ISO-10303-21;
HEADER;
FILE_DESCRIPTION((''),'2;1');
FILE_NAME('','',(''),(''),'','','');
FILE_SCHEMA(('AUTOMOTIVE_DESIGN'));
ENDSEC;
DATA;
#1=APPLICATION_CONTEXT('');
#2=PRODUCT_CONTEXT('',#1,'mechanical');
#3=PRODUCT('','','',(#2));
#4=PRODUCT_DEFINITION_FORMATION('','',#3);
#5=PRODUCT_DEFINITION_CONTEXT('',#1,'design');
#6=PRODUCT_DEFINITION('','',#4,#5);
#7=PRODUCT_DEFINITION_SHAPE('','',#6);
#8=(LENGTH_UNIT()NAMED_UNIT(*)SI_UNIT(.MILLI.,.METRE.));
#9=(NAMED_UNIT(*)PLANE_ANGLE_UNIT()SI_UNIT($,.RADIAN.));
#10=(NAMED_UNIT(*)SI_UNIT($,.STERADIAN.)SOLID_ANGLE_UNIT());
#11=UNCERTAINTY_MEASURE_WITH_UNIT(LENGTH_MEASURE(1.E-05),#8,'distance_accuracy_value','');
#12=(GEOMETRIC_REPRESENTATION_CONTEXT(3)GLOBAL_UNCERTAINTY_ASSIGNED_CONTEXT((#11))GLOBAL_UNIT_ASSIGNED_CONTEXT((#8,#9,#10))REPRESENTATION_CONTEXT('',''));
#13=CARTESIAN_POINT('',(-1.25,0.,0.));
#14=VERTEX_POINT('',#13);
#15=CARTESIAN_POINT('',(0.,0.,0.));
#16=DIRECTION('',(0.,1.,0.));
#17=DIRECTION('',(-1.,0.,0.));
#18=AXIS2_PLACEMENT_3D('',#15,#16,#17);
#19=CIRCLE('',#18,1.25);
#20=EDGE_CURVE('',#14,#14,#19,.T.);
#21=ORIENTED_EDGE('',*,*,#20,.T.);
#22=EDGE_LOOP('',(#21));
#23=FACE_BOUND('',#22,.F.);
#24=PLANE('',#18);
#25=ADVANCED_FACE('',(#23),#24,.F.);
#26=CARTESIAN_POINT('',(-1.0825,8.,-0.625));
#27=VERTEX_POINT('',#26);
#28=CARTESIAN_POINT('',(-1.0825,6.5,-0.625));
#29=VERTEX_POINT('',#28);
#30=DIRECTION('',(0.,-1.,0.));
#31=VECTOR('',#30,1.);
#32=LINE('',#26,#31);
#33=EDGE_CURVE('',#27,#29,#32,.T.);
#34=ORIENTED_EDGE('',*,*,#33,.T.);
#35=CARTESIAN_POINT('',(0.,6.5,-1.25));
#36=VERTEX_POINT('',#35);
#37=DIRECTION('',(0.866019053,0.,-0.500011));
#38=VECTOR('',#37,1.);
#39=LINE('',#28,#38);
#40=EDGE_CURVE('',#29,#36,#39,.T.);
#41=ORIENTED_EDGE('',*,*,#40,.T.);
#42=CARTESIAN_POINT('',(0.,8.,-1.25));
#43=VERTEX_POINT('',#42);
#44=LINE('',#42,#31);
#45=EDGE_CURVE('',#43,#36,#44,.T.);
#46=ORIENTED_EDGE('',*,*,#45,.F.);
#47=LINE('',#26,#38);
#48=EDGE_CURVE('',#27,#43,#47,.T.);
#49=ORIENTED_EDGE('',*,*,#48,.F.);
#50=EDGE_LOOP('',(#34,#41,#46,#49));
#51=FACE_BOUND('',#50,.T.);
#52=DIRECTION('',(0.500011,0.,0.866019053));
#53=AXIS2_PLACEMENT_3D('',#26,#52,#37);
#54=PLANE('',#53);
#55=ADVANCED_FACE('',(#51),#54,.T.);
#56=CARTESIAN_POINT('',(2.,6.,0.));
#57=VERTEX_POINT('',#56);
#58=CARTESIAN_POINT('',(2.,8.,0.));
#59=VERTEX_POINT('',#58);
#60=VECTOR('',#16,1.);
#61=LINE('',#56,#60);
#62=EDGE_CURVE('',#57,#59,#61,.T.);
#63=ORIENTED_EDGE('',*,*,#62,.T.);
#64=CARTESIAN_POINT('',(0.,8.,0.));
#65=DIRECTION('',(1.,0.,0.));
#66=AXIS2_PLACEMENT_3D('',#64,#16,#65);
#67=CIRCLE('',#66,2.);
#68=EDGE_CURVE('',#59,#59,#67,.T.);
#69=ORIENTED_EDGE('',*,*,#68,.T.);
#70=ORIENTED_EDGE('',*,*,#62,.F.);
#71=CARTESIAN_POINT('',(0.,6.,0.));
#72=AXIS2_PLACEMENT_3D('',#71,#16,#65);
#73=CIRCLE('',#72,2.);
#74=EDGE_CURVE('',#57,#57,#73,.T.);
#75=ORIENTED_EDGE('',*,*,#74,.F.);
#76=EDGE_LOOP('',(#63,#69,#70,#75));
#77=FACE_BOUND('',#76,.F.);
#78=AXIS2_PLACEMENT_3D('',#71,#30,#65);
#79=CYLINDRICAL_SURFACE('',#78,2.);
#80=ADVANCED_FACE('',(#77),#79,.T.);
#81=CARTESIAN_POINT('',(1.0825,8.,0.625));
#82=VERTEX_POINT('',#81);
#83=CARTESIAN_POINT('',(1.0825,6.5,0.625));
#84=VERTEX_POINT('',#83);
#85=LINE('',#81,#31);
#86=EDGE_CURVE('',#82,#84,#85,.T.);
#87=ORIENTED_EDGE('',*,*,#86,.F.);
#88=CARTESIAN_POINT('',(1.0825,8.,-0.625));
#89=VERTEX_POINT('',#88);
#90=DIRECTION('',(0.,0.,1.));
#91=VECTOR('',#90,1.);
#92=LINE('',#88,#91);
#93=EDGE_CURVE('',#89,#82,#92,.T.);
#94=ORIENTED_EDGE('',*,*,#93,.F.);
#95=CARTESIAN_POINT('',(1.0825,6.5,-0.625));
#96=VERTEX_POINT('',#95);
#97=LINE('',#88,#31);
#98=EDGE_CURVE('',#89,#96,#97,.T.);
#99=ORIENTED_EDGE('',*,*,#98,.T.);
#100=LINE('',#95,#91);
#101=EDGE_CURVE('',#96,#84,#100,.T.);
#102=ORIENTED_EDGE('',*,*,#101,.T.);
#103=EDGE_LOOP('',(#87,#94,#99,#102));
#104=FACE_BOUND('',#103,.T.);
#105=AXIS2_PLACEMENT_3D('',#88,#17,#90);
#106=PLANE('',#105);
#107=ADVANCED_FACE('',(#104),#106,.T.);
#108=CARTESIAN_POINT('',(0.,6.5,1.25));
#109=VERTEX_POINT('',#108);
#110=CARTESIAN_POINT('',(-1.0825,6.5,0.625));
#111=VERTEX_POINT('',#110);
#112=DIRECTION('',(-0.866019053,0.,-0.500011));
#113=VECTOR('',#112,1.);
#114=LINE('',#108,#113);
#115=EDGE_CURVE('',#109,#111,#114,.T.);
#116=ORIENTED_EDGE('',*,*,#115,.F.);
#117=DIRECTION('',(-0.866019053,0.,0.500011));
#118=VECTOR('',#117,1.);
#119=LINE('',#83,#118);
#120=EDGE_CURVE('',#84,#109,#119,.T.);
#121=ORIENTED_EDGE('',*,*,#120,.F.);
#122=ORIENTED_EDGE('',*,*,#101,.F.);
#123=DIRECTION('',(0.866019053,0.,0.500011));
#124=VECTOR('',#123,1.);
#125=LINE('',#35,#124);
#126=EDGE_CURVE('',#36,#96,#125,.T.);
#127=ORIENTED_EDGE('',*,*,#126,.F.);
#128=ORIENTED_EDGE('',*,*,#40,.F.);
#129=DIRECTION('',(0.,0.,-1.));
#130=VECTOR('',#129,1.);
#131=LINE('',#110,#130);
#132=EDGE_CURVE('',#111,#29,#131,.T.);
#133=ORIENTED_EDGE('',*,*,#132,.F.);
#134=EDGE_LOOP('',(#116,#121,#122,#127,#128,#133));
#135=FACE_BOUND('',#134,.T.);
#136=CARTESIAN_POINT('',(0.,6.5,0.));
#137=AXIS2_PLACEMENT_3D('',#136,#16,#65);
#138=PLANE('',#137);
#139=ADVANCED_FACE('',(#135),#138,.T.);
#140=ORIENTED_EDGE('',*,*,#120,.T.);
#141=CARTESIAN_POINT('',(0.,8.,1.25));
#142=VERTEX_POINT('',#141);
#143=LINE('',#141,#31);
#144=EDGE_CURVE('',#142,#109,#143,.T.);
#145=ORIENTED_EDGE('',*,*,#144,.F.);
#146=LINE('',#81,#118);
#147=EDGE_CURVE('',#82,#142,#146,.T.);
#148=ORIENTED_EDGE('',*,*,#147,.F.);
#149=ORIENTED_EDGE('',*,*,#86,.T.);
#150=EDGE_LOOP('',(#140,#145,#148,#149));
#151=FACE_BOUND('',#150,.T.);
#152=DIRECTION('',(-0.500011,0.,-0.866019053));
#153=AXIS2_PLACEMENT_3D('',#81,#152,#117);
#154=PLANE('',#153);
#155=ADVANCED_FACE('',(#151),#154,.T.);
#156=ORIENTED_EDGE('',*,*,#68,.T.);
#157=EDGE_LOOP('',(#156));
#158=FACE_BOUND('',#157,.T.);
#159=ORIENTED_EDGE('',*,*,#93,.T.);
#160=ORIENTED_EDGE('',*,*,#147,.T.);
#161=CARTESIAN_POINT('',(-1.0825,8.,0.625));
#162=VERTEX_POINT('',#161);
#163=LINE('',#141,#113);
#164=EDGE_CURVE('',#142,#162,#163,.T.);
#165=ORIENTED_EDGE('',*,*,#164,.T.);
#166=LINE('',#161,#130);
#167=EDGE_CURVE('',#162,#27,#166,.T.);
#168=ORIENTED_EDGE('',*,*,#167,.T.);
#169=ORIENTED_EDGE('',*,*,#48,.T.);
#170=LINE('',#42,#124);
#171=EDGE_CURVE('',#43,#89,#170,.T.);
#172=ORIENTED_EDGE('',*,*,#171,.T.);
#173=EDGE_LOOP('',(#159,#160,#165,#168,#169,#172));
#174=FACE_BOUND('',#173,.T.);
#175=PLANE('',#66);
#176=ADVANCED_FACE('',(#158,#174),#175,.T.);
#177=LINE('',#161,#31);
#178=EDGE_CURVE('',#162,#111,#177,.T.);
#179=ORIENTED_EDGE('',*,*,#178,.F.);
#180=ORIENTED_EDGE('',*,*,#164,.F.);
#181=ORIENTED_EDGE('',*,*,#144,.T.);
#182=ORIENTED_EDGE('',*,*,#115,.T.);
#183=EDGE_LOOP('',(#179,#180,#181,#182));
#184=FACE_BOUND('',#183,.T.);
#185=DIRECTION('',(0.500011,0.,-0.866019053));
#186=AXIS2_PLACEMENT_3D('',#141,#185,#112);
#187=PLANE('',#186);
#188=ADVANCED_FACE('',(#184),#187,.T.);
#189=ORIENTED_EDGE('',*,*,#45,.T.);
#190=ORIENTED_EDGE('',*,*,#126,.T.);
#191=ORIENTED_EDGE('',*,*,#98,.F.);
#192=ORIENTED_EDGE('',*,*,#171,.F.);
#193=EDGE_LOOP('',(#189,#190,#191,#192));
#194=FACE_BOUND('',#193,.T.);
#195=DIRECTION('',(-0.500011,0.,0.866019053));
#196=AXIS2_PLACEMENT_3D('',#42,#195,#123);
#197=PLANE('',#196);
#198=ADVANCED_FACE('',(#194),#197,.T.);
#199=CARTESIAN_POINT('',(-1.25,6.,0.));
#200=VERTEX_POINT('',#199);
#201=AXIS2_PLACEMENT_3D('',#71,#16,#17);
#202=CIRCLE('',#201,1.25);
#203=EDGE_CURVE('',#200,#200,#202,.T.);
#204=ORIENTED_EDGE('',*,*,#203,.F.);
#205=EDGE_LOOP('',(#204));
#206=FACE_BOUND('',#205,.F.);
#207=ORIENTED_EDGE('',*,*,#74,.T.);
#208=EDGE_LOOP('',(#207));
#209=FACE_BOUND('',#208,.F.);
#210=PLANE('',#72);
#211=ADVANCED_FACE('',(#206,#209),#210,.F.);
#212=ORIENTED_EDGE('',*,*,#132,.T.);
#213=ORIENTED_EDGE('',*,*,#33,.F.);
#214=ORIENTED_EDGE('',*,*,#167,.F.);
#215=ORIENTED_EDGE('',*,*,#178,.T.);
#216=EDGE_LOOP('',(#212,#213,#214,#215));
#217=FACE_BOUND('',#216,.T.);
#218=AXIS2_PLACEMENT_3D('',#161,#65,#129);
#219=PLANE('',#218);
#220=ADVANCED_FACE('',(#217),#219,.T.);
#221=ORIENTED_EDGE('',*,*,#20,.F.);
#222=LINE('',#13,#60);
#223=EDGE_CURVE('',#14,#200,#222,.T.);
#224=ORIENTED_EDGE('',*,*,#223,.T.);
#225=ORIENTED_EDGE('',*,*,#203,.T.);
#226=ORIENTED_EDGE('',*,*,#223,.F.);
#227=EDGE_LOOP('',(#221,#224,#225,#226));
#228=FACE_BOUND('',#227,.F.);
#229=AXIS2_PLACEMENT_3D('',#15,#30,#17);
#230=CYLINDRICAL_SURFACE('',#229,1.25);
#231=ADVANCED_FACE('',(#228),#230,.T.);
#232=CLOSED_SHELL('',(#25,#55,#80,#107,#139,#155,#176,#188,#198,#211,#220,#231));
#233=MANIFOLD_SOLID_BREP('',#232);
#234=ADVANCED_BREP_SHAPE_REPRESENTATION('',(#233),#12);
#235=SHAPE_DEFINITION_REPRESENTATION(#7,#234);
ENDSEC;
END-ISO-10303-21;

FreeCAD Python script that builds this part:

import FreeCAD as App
import Part
import Sketcher
from FreeCAD import Vector
Q = App.Units.Quantity

doc = App.newDocument("Part")
body = doc.addObject("PartDesign::Body", "Body")

# Sketch on XZ plane
sketch1 = body.newObject("Sketcher::SketchObject", "Sketch")
sketch1.AttachmentSupport = (doc.getObject("XZ_Plane"), [""])
sketch1.MapMode = "FlatFace"
sketch1.addGeometry(Part.Circle(Vector(0, 0, 0), Vector(0, 0, 1), 1.25), False)
sketch1.addConstraint([
    Sketcher.Constraint("Coincident", 0, 3, -1, 1),
    Sketcher.Constraint("Diameter", 0, 2.5),
])
pad1 = body.newObject("PartDesign::Pad", "Pad")
pad1.Profile = sketch1
pad1.Length = 6
pad1.Reversed = True

# Sketch on XZ plane
sketch2 = body.newObject("Sketcher::SketchObject", "Sketch001")
sketch2.AttachmentSupport = (doc.getObject("XZ_Plane"), [""])
sketch2.MapMode = "FlatFace"
sketch2.AttachmentOffset = App.Placement(Vector(0, 0, -6), App.Rotation())
sketch2.addGeometry(Part.Circle(Vector(0, 0, 0), Vector(0, 0, 1), 2), False)
sketch2.addConstraint([
    Sketcher.Constraint("Coincident", 0, 3, -1, 1),
    Sketcher.Constraint("Diameter", 0, 4.0),
])
pad2 = body.newObject("PartDesign::Pad", "Pad001")
pad2.Profile = sketch2
pad2.Length = 2
pad2.Reversed = True

# Sketch on XZ plane
sketch3 = body.newObject("Sketcher::SketchObject", "Sketch002")
sketch3.AttachmentSupport = (doc.getObject("XZ_Plane"), [""])
sketch3.MapMode = "FlatFace"
sketch3.AttachmentOffset = App.Placement(Vector(0, 0, -8), App.Rotation())
sketch3.addGeometry([
    Part.LineSegment(Vector(1.0825, 0.625, 0), Vector(1.0825, -0.625, 0)),  # 0
    Part.LineSegment(Vector(1.0825, -0.625, 0), Vector(0, -1.25, 0)),  # 1
    Part.LineSegment(Vector(0, -1.25, 0), Vector(-1.0825, -0.625, 0)),  # 2
    Part.LineSegment(Vector(-1.0825, -0.625, 0), Vector(-1.0825, 0.625, 0)),  # 3
    Part.LineSegment(Vector(-1.0825, 0.625, 0), Vector(0, 1.25, 0)),  # 4
    Part.LineSegment(Vector(0, 1.25, 0), Vector(1.0825, 0.625, 0)),  # 5
], False)
sketch3.addConstraint([
    Sketcher.Constraint("Coincident", 0, 2, 1, 1),
    Sketcher.Constraint("Coincident", 1, 2, 2, 1),
    Sketcher.Constraint("Coincident", 2, 2, 3, 1),
    Sketcher.Constraint("Coincident", 3, 2, 4, 1),
    Sketcher.Constraint("Coincident", 4, 2, 5, 1),
    Sketcher.Constraint("Coincident", 5, 2, 0, 1),
    Sketcher.Constraint("Vertical", 0),
    Sketcher.Constraint("Vertical", 3),
    Sketcher.Constraint("Symmetric", 0, 2, 3, 2, -1, 1),
    Sketcher.Constraint("Symmetric", 1, 2, 4, 2, -1, 1),
    Sketcher.Constraint("PointOnObject", 1, 2, -2),
    Sketcher.Constraint("Parallel", 2, 5),
    Sketcher.Constraint("Horizontal", 0, 2, 2, 2),
    Sketcher.Constraint("Angle", 1, Q("-149.9993 deg")),
    Sketcher.Constraint("DistanceY", 0, 2, 0, 1, 1.25),
    Sketcher.Constraint("DistanceY", 1, 2, 4, 2, 2.5),
])
pocket1 = body.newObject("PartDesign::Pocket", "Pocket")
pocket1.Profile = sketch3
pocket1.Length = 1.5
pocket1.Reversed = True

doc.recompute()
